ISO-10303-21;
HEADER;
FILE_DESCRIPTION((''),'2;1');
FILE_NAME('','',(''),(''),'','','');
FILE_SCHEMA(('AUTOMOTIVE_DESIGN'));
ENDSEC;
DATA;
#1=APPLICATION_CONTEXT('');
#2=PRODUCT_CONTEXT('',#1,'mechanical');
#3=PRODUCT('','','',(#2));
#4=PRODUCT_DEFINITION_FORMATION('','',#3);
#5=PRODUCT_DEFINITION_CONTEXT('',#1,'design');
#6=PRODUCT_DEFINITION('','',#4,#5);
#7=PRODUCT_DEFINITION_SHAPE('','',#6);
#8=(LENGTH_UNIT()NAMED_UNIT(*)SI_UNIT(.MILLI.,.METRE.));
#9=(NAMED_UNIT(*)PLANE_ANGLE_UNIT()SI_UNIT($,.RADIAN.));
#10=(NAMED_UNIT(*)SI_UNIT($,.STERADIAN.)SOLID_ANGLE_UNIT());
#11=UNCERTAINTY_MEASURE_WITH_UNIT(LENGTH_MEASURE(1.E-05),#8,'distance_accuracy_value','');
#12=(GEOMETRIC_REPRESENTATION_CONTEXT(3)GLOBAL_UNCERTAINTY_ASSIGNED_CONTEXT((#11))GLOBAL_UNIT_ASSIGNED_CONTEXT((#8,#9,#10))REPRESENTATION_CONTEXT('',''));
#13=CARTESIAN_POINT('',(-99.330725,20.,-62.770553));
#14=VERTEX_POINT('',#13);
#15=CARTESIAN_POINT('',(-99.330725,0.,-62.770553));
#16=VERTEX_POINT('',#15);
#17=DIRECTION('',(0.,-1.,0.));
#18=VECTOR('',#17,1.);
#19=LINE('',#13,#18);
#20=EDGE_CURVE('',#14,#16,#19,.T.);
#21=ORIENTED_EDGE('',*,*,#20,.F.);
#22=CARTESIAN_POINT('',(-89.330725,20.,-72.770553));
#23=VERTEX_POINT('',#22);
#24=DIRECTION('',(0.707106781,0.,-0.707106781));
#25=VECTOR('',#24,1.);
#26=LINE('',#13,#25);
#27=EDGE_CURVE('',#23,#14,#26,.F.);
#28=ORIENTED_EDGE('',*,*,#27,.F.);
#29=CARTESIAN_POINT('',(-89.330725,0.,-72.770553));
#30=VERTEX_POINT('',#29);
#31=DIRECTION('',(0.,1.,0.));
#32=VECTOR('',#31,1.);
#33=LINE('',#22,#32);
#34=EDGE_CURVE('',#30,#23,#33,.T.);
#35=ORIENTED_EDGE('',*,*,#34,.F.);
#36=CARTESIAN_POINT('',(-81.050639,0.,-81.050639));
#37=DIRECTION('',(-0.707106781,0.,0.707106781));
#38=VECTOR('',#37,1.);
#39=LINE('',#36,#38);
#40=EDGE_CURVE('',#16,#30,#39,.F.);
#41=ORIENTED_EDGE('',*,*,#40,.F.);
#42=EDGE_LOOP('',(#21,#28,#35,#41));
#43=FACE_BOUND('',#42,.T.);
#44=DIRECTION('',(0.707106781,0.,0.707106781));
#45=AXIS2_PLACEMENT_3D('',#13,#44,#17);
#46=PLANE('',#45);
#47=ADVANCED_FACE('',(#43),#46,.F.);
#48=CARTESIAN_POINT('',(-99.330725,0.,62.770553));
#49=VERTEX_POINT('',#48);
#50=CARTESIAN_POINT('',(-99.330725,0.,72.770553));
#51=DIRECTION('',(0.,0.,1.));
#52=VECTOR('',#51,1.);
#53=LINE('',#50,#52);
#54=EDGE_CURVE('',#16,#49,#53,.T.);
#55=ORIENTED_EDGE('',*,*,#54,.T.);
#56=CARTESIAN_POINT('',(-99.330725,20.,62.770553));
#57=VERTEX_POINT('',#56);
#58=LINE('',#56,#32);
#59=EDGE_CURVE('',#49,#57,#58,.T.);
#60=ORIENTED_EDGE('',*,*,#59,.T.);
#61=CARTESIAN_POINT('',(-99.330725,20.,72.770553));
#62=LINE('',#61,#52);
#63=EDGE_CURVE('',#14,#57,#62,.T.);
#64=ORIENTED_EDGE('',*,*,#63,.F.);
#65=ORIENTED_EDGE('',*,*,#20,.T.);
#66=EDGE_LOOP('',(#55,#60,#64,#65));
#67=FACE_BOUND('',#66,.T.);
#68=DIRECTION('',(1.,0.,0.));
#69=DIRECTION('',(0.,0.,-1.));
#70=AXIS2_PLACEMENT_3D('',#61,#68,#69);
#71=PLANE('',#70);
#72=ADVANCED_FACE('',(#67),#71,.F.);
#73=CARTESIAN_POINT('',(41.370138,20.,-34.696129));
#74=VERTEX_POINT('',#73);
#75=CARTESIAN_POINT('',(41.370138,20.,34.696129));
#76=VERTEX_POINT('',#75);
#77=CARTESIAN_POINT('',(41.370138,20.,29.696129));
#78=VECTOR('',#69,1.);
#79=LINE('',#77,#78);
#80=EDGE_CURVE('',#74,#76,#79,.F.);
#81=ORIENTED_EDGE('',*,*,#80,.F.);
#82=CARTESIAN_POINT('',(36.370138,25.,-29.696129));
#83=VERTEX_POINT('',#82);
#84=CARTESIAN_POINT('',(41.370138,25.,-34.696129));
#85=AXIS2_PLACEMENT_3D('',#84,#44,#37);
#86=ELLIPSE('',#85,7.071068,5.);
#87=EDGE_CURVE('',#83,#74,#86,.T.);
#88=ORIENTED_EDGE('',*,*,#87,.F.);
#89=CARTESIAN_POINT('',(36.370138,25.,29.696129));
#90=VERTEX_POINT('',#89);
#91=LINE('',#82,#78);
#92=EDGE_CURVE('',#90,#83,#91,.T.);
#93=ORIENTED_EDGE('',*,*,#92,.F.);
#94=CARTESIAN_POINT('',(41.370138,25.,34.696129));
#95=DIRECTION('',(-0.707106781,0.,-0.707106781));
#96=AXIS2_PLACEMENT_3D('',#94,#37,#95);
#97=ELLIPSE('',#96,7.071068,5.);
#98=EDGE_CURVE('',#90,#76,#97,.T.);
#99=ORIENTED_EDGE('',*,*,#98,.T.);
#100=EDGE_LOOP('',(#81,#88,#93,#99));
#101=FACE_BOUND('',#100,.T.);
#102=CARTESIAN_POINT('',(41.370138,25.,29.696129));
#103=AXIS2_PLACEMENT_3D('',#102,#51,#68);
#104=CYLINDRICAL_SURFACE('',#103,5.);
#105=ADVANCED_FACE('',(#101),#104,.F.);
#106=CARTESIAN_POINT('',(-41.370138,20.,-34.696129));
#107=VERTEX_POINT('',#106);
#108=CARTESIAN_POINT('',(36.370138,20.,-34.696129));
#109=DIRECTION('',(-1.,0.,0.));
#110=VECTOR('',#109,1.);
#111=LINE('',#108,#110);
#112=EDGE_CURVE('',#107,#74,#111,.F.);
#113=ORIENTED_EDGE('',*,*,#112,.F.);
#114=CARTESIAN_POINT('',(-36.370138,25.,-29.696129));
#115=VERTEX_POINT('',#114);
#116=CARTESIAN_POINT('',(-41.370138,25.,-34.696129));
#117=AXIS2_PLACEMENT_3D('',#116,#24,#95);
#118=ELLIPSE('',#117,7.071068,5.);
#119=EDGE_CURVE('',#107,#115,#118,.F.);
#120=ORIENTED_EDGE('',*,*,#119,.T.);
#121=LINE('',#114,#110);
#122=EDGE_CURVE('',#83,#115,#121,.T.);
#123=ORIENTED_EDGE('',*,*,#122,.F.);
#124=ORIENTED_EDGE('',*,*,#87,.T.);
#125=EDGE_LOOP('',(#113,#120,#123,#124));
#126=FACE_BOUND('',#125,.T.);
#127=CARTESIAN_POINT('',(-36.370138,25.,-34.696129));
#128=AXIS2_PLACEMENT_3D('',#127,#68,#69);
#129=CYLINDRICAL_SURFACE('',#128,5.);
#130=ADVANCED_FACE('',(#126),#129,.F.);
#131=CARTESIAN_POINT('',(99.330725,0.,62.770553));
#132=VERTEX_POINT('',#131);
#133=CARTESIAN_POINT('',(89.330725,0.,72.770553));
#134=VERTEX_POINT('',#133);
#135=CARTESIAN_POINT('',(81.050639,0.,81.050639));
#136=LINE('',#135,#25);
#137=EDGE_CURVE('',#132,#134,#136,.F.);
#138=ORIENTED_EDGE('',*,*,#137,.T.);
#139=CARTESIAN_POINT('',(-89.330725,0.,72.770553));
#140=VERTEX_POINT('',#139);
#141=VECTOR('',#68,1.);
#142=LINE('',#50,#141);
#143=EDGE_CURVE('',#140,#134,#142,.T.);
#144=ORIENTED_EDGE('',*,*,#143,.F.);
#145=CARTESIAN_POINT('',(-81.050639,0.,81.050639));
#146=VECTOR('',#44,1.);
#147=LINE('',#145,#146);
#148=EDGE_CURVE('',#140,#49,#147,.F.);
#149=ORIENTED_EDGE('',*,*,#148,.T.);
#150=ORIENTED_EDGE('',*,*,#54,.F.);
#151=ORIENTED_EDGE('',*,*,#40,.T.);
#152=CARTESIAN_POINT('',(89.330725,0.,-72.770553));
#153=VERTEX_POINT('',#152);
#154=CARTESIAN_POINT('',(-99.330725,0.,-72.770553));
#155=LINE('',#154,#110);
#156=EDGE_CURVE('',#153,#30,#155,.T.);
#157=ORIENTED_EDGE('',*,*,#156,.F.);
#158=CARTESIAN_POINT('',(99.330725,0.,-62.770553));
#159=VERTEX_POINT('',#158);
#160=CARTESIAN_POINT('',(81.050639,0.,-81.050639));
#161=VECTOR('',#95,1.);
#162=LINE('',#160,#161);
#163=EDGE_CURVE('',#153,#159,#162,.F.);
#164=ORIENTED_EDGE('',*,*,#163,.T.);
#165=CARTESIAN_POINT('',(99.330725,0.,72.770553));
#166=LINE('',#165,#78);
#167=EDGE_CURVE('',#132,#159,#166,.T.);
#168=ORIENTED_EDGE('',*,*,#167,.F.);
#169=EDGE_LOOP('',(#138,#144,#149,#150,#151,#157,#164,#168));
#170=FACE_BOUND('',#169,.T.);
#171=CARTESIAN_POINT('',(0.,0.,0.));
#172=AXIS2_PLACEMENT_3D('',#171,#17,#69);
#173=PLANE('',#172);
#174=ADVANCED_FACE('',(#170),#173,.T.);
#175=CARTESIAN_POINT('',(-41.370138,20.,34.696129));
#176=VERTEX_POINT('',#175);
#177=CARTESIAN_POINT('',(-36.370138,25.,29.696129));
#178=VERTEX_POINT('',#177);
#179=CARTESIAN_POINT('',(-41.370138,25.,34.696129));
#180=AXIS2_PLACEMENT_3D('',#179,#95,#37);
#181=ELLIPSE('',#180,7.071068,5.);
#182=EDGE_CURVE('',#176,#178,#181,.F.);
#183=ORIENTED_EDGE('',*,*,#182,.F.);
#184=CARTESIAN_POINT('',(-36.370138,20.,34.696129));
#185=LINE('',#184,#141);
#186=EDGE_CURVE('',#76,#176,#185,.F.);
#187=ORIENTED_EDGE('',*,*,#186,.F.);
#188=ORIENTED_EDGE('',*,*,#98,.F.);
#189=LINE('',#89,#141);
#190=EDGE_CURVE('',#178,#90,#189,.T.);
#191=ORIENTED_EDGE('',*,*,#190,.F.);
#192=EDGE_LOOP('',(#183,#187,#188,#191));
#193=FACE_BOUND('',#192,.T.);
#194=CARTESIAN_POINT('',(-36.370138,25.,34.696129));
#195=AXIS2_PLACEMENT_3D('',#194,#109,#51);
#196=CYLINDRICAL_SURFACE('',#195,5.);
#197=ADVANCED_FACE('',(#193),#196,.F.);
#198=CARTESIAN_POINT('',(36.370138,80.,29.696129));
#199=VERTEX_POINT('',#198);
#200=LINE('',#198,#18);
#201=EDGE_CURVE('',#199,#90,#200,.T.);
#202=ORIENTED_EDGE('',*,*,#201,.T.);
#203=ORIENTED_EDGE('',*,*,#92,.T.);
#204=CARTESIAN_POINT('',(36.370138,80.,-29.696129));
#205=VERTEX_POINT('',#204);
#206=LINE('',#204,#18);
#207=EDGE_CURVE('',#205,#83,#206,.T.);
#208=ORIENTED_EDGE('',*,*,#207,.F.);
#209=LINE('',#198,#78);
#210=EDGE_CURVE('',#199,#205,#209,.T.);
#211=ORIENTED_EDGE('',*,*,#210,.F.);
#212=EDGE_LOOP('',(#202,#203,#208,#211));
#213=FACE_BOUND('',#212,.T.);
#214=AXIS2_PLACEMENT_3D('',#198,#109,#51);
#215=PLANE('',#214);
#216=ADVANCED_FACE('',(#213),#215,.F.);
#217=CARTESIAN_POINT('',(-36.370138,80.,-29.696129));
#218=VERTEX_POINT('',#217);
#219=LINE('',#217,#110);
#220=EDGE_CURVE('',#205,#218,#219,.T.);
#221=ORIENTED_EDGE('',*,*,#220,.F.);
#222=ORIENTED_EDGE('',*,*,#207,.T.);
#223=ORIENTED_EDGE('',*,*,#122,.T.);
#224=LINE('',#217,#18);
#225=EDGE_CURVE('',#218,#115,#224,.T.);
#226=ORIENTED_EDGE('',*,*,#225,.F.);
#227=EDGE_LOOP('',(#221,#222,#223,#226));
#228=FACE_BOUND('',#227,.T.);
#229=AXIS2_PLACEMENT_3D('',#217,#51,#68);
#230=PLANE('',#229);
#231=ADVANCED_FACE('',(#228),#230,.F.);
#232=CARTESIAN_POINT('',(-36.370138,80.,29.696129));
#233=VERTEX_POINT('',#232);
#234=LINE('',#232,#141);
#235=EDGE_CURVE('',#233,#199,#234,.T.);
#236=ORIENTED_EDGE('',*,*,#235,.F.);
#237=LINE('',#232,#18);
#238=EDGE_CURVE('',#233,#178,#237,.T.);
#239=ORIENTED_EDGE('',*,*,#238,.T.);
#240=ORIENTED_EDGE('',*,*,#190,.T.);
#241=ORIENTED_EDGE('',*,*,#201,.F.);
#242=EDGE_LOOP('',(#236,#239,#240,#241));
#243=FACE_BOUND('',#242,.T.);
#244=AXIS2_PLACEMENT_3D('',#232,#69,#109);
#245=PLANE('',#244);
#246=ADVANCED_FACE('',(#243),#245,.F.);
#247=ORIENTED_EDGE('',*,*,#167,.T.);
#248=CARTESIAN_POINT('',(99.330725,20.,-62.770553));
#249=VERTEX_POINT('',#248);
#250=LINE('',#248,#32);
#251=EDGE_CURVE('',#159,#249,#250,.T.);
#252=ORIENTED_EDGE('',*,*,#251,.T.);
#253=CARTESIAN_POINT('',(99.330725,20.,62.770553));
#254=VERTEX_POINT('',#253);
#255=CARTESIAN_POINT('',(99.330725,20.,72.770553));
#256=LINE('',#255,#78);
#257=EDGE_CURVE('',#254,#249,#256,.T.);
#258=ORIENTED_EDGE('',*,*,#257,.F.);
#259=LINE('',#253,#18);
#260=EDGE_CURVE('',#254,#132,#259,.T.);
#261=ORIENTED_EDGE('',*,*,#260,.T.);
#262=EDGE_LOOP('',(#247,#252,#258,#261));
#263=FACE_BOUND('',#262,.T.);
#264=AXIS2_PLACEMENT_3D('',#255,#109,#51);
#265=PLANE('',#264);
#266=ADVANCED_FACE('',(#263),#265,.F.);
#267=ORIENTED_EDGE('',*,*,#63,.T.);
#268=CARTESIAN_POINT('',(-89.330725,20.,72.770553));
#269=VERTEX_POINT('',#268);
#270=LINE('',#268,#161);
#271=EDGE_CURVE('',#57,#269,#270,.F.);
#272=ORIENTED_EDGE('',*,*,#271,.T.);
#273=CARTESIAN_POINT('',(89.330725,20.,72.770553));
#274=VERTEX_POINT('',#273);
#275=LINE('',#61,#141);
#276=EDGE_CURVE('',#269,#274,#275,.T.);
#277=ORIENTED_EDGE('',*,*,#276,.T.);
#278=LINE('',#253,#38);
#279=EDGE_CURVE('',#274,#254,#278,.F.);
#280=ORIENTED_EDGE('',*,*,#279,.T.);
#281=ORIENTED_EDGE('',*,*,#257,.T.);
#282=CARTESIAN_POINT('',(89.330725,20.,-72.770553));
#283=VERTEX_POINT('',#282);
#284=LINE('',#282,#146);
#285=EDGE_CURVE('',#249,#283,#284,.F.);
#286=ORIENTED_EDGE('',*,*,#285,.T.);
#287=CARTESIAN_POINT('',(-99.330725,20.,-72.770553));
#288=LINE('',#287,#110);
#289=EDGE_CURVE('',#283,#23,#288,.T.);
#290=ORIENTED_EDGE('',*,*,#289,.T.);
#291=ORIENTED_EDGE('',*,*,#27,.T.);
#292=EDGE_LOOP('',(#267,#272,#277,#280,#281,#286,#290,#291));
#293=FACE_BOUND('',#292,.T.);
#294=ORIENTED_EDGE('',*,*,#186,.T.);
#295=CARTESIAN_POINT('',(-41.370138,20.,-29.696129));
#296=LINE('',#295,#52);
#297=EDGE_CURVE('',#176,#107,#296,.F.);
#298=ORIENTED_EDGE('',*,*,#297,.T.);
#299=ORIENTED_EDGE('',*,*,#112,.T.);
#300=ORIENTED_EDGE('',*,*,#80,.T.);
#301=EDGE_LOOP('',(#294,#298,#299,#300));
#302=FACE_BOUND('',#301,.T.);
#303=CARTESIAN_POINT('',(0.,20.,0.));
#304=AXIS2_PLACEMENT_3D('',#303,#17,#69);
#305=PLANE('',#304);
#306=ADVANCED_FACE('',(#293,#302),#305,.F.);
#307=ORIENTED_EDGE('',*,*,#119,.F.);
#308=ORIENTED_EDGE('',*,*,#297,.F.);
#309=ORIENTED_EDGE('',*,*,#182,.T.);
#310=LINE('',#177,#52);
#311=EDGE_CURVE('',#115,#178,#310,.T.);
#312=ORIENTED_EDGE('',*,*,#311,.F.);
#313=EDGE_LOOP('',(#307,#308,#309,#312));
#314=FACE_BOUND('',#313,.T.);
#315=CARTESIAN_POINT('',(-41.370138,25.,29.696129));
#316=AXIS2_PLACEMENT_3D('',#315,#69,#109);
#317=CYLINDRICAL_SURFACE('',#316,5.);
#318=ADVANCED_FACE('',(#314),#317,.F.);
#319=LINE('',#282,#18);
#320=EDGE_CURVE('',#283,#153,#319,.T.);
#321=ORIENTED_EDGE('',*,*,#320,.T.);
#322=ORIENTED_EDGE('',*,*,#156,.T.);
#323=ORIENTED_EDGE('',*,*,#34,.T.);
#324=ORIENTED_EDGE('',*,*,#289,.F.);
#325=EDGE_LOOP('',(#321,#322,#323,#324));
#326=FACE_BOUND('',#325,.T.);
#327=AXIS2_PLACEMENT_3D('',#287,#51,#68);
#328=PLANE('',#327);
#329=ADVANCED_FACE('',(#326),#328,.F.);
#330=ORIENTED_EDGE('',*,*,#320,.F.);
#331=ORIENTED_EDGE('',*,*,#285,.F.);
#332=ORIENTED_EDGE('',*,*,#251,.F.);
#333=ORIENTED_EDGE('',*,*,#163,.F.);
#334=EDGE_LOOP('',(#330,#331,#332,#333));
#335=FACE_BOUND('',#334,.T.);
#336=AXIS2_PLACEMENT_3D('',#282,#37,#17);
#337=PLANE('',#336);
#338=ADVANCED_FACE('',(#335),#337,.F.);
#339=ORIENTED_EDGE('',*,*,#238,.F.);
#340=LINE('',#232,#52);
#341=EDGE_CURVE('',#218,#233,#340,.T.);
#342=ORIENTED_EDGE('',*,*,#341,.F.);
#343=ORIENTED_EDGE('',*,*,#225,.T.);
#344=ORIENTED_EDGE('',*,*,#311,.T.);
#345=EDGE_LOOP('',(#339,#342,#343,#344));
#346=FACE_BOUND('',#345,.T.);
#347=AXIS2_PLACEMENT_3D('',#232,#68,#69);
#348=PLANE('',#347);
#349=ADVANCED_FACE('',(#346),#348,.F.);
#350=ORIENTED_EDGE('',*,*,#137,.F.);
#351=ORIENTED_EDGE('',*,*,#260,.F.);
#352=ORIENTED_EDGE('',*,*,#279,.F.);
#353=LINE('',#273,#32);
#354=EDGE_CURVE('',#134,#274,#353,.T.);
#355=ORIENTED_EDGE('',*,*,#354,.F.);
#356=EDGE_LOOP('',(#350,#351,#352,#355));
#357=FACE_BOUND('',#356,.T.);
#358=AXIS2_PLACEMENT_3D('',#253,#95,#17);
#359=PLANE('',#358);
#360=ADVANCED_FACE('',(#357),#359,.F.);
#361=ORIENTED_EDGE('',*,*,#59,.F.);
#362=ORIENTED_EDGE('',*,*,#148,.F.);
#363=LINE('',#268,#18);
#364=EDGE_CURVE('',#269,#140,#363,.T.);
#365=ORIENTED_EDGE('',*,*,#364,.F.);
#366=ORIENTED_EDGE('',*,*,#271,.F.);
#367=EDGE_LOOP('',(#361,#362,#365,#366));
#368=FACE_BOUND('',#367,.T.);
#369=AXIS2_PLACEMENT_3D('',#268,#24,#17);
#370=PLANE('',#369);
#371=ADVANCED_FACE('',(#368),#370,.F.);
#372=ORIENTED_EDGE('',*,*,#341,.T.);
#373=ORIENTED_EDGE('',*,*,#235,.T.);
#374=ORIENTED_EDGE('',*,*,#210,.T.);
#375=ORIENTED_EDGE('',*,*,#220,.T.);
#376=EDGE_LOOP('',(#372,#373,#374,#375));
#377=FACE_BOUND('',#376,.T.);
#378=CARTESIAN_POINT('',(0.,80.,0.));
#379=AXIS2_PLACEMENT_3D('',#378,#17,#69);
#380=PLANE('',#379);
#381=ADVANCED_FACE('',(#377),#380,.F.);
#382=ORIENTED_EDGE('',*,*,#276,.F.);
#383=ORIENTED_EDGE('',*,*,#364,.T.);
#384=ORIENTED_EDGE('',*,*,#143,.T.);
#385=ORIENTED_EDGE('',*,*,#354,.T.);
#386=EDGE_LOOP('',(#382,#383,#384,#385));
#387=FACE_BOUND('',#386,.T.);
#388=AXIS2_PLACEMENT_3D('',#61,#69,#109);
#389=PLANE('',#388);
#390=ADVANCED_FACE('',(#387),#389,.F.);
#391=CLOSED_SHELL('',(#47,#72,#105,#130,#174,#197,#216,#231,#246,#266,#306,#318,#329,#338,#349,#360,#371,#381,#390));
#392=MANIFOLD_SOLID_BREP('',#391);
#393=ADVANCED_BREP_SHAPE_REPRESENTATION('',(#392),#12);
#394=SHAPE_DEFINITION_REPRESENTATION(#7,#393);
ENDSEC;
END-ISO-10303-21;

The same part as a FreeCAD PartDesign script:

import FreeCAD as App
import Part
import Sketcher
from FreeCAD import Vector


def edges_at(feature, points):
    """Names of the edges that pass closest to the given points."""
    edges = feature.Shape.Edges
    near = lambda p: min(range(len(edges)), key=lambda i: edges[i].distToShape(Part.Vertex(*p))[0])
    return sorted({f"Edge{near(p) + 1}" for p in points})


def add_polygon(sketch, points):
    """Adds a closed chain of lines whose ends are joined by coincident constraints."""
    first, n = sketch.GeometryCount, len(points)
    for a, b in zip(points, points[1:] + points[:1]):
        sketch.addGeometry(Part.LineSegment(App.Vector(*a, 0), App.Vector(*b, 0)), False)
    for i in range(n):
        sketch.addConstraint(Sketcher.Constraint("Coincident", first + i, 2, first + (i + 1) % n, 1))

doc = App.newDocument("Part")
params = doc.addObject("Spreadsheet::Sheet", "Params")
for row, (alias, value) in enumerate([
    ("pad1_length", "20 mm"),
    ("pad2_length", "60 mm"),
    ("fillet_radius", "5 mm"),
    ("chamfer_size", "10 mm"),
], start=1):
    params.set(f"A{row}", alias)
    params.set(f"B{row}", "=" + value)
    params.setAlias(f"B{row}", alias)

body = doc.addObject("PartDesign::Body", "Body")

# Sketch on XZ plane
sketch1 = body.newObject("Sketcher::SketchObject", "Sketch")
sketch1.AttachmentSupport = (doc.getObject("XZ_Plane"), [""])
sketch1.MapMode = "FlatFace"
add_polygon(sketch1, [(-99, -73), (-99, 73), (99, 73), (99, -73)])  # lines 0-3
sketch1.addConstraint(Sketcher.Constraint("Vertical", 0))
sketch1.addConstraint(Sketcher.Constraint("Horizontal", 1))
sketch1.addConstraint(Sketcher.Constraint("Vertical", 2))
sketch1.addConstraint(Sketcher.Constraint("Horizontal", 3))
sketch1.addConstraint(Sketcher.Constraint("Symmetric", 0, 2, 2, 2, -1, 1))
sketch1.addConstraint(Sketcher.Constraint("DistanceX", 1, 1, 1, 2, 198.66145))
sketch1.addConstraint(Sketcher.Constraint("DistanceY", 0, 1, 0, 2, 145.541105))
pad1 = body.newObject("PartDesign::Pad", "Pad")
pad1.Profile = sketch1
pad1.setExpression("Length", "Params.pad1_length")
pad1.Reversed = True

# Sketch on XZ plane
sketch2 = body.newObject("Sketcher::SketchObject", "Sketch001")
sketch2.AttachmentSupport = (doc.getObject("XZ_Plane"), [""])
sketch2.MapMode = "FlatFace"
sketch2.AttachmentOffset = App.Placement(Vector(0, 0, -20), App.Rotation())
add_polygon(sketch2, [(-36, -30), (-36, 30), (36, 30), (36, -30)])  # lines 0-3
sketch2.addConstraint(Sketcher.Constraint("Vertical", 0))
sketch2.addConstraint(Sketcher.Constraint("Horizontal", 1))
sketch2.addConstraint(Sketcher.Constraint("Vertical", 2))
sketch2.addConstraint(Sketcher.Constraint("Horizontal", 3))
sketch2.addConstraint(Sketcher.Constraint("Symmetric", 0, 2, 2, 2, -1, 1))
sketch2.addConstraint(Sketcher.Constraint("DistanceY", 0, 1, 0, 2, 59.392258))
sketch2.addConstraint(Sketcher.Constraint("DistanceX", 1, 1, 1, 2, 72.740275))
pad2 = body.newObject("PartDesign::Pad", "Pad001")
pad2.Profile = sketch2
pad2.setExpression("Length", "Params.pad2_length")
pad2.Reversed = True
doc.recompute()

fillet = body.newObject("PartDesign::Fillet", "Fillet")
fillet.Base = (pad2, edges_at(pad2, [
    (36.37, 20, 0),
    (0, 20, -29.696),
    (-36.37, 20, 0),
    (0, 20, 29.696),
]))
fillet.setExpression("Radius", "Params.fillet_radius")
doc.recompute()

chamfer = body.newObject("PartDesign::Chamfer", "Chamfer")
chamfer.Base = (fillet, edges_at(fillet, [
    (99.331, 10, 72.771),
    (-99.331, 10, 72.771),
    (-99.331, 10, -72.771),
    (99.331, 10, -72.771),
]))
chamfer.setExpression("Size", "Params.chamfer_size")

doc.recompute()
